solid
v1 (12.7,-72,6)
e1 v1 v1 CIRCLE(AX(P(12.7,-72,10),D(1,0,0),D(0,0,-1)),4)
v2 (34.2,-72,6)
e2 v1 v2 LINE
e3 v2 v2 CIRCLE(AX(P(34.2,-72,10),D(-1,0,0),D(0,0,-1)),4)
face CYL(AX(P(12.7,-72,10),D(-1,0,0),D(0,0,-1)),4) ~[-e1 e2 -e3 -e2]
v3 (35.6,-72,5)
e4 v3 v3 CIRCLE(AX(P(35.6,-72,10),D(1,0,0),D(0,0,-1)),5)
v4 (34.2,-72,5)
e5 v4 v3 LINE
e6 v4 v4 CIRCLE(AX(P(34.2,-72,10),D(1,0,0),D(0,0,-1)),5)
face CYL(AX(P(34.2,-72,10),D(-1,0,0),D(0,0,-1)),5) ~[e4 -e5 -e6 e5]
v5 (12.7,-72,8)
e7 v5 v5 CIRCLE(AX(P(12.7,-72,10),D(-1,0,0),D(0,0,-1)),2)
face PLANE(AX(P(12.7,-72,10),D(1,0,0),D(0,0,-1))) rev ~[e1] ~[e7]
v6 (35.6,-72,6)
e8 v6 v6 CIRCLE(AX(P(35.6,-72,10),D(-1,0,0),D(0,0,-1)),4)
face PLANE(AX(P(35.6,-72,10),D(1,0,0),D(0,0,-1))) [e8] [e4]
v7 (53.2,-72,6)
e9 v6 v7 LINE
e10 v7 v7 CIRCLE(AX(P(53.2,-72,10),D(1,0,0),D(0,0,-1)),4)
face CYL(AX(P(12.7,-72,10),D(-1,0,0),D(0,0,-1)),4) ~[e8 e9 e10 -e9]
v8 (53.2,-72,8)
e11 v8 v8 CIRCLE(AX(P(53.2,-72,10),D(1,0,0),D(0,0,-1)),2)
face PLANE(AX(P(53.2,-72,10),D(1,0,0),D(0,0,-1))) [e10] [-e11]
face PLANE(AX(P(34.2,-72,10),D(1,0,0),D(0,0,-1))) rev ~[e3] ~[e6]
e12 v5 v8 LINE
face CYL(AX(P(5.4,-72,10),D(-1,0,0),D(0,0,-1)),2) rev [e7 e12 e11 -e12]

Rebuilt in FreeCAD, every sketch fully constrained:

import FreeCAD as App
import Part
import Sketcher

doc = App.newDocument("Part")
params = doc.addObject("Spreadsheet::Sheet", "Params")
for row, (alias, value) in enumerate([
    ("sketch1_diameter", "4 mm"),
    ("pad1_length", "47.8 mm"),
    ("sketch2_diameter", "10 mm"),
    ("pad2_length", "1.4 mm"),
    ("sketch3_diameter", "8 mm"),
    ("pad3_length", "40.5 mm"),
], start=1):
    params.set(f"A{row}", alias)
    params.set(f"B{row}", "=" + value)
    params.setAlias(f"B{row}", alias)

body = doc.addObject("PartDesign::Body", "Body")

sketch1 = doc.addObject("Sketcher::SketchObject", "Sketch")
body.addObject(sketch1)
sketch1.AttachmentSupport = (doc.YZ_Plane, [""])
sketch1.MapMode = "FlatFace"
sketch1.AttachmentOffset = App.Placement(App.Vector(0, 0, 9.4), App.Rotation())
sketch1.addGeometry(Part.Circle(App.Vector(-82, 10, 0), App.Vector(0, 0, 1), 2), False)
sketch1.addConstraint([
    Sketcher.Constraint("Diameter", 0, 4.0),
    Sketcher.Constraint("DistanceX", 0, 3, -1, 1, 82.0),
    Sketcher.Constraint("DistanceY", -1, 1, 0, 3, 10.0),
])
sketch1.setExpression("Constraints[0]", "Params.sketch1_diameter")
pad1 = doc.addObject("PartDesign::Pad", "Pad")
body.addObject(pad1)
pad1.Profile = sketch1
pad1.setExpression("Length", "Params.pad1_length")
body2 = doc.addObject("PartDesign::Body", "Body001")

sketch2 = doc.addObject("Sketcher::SketchObject", "Sketch001")
body2.addObject(sketch2)
sketch2.AttachmentSupport = (doc.getObject("YZ_Plane001"), [""])
sketch2.MapMode = "FlatFace"
sketch2.AttachmentOffset = App.Placement(App.Vector(0, 0, 38.2), App.Rotation())
sketch2.addGeometry(Part.Circle(App.Vector(-82, 10, 0), App.Vector(0, 0, 1), 5), False)
sketch2.addConstraint([
    Sketcher.Constraint("Diameter", 0, 10.0),
    Sketcher.Constraint("DistanceX", 0, 3, -1, 1, 82.0),
    Sketcher.Constraint("DistanceY", -1, 1, 0, 3, 10.0),
])
sketch2.setExpression("Constraints[0]", "Params.sketch2_diameter")
pad2 = doc.addObject("PartDesign::Pad", "Pad001")
body2.addObject(pad2)
pad2.Profile = sketch2
pad2.setExpression("Length", "Params.pad2_length")
body3 = doc.addObject("PartDesign::Body", "Body002")

sketch3 = doc.addObject("Sketcher::SketchObject", "Sketch002")
body3.addObject(sketch3)
sketch3.AttachmentSupport = (doc.getObject("YZ_Plane002"), [""])
sketch3.MapMode = "FlatFace"
sketch3.AttachmentOffset = App.Placement(App.Vector(0, 0, 16.7), App.Rotation())
sketch3.addGeometry(Part.Circle(App.Vector(-82, 10, 0), App.Vector(0, 0, 1), 4), False)
sketch3.addConstraint([
    Sketcher.Constraint("Diameter", 0, 8.0),
    Sketcher.Constraint("DistanceX", 0, 3, -1, 1, 82.0),
    Sketcher.Constraint("DistanceY", -1, 1, 0, 3, 10.0),
])
sketch3.setExpression("Constraints[0]", "Params.sketch3_diameter")
pad3 = doc.addObject("PartDesign::Pad", "Pad002")
body3.addObject(pad3)
pad3.Profile = sketch3
pad3.setExpression("Length", "Params.pad3_length")
doc.recompute()

boolean = doc.addObject("PartDesign::Boolean", "Boolean")
body3.addObject(boolean)
boolean.Type = "Fuse"
boolean.addObjects([body2])
doc.recompute()

boolean2 = doc.addObject("PartDesign::Boolean", "Boolean001")
body3.addObject(boolean2)
boolean2.Type = "Cut"
boolean2.addObjects([body])
body4 = doc.addObject("PartDesign::Body", "Body003")
doc.recompute()

body3.Placement = App.Placement(App.Vector(-4, 10, 0), App.Rotation(App.Vector(0, 0, 1), 0))
boolean3 = doc.addObject("PartDesign::Boolean", "Boolean002")
body4.addObject(boolean3)
boolean3.Type = "Fuse"
boolean3.addObjects([body3])

doc.recompute()
